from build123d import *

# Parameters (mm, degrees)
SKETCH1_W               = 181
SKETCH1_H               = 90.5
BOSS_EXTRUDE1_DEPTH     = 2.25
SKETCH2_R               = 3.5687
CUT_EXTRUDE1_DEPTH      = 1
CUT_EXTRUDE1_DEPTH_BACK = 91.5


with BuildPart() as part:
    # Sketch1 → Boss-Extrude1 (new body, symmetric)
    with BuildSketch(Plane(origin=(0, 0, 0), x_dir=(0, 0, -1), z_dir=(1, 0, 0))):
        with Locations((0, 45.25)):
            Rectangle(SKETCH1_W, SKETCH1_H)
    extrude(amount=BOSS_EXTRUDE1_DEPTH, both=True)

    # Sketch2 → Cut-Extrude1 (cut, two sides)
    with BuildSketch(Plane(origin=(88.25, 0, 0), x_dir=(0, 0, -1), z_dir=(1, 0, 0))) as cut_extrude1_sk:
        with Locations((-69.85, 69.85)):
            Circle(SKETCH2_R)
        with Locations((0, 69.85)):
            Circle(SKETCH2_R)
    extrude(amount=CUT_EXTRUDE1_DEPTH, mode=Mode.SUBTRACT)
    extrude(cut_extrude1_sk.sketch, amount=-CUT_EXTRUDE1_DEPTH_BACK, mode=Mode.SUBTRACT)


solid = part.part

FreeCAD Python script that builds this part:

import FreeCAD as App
import Part
import Sketcher
from FreeCAD import Vector
Q = App.Units.Quantity

doc = App.newDocument("Part")
params = doc.addObject("Spreadsheet::Sheet", "Params")
for row, (alias, value) in enumerate([
    ("sketch1_height", "181 mm"),
    ("sketch1_width", "90.5 mm"),
    ("pad1_length", "4.5 mm"),
], start=1):
    params.set(f"A{row}", alias)
    params.set(f"B{row}", "=" + value)
    params.setAlias(f"B{row}", alias)

body = doc.addObject("PartDesign::Body", "Body")

# Sketch on YZ plane
sketch1 = body.newObject("Sketcher::SketchObject", "Sketch")
sketch1.AttachmentSupport = (doc.getObject("YZ_Plane"), [""])
sketch1.MapMode = "FlatFace"
sketch1.addGeometry(Part.LineSegment(Vector(90, 90, 0), Vector(0, 90, 0)), False)
sketch1.addGeometry(Part.LineSegment(Vector(0, 90, 0), Vector(0, -90, 0)), False)
sketch1.addGeometry(Part.LineSegment(Vector(0, -90, 0), Vector(90, -90, 0)), False)
sketch1.addGeometry(Part.LineSegment(Vector(90, -90, 0), Vector(90, 90, 0)), False)
sketch1.addConstraint(Sketcher.Constraint("Coincident", 0, 2, 1, 1))
sketch1.addConstraint(Sketcher.Constraint("Coincident", 1, 2, 2, 1))
sketch1.addConstraint(Sketcher.Constraint("Coincident", 2, 2, 3, 1))
sketch1.addConstraint(Sketcher.Constraint("Coincident", 3, 2, 0, 1))
sketch1.addConstraint(Sketcher.Constraint("Horizontal", 0))
sketch1.addConstraint(Sketcher.Constraint("Vertical", 1))
sketch1.addConstraint(Sketcher.Constraint("Horizontal", 2))
sketch1.addConstraint(Sketcher.Constraint("Vertical", 3))
sketch1.addConstraint(Sketcher.Constraint("Symmetric", 0, 2, 1, 2, -1, 1))
sketch1.addConstraint(Sketcher.Constraint("DistanceY", 1, 2, 1, 1, Q("181 mm")))
sketch1.addConstraint(Sketcher.Constraint("DistanceX", 0, 2, 0, 1, Q("90.5 mm")))
sketch1.setExpression("Constraints[9]", "Params.sketch1_height")
sketch1.setExpression("Constraints[10]", "Params.sketch1_width")
pad1 = body.newObject("PartDesign::Pad", "Pad")
pad1.Profile = sketch1
pad1.setExpression("Length", "Params.pad1_length")
pad1.Midplane = True

# Sketch on YZ plane
sketch2 = body.newObject("Sketcher::SketchObject", "Sketch001")
sketch2.AttachmentSupport = (doc.getObject("YZ_Plane"), [""])
sketch2.MapMode = "FlatFace"
sketch2.AttachmentOffset = App.Placement(Vector(0, 0, 88.25), App.Rotation())
sketch2.addGeometry(Part.Circle(Vector(69.8, 69.8, 0), Vector(0, 0, 1), 3.6), False)
sketch2.addGeometry(Part.Circle(Vector(69.8, 0, 0), Vector(0, 0, 1), 3.6), False)
sketch2.addConstraint(Sketcher.Constraint("Equal", 0, 1))
sketch2.addConstraint(Sketcher.Constraint("PointOnObject", 1, 3, -1))
sketch2.addConstraint(Sketcher.Constraint("Vertical", 0, 3, 1, 3))
sketch2.addConstraint(Sketcher.Constraint("Diameter", 0, Q("7.1374 mm")))
sketch2.addConstraint(Sketcher.Constraint("DistanceX", -1, 1, 0, 3, Q("69.85 mm")))
sketch2.addConstraint(Sketcher.Constraint("DistanceY", -1, 1, 0, 3, Q("69.85 mm")))
pocket1 = body.newObject("PartDesign::Pocket", "Pocket")
pocket1.Profile = sketch2
pocket1.Type = "ThroughAll"
pocket1.Midplane = True

doc.recompute()
